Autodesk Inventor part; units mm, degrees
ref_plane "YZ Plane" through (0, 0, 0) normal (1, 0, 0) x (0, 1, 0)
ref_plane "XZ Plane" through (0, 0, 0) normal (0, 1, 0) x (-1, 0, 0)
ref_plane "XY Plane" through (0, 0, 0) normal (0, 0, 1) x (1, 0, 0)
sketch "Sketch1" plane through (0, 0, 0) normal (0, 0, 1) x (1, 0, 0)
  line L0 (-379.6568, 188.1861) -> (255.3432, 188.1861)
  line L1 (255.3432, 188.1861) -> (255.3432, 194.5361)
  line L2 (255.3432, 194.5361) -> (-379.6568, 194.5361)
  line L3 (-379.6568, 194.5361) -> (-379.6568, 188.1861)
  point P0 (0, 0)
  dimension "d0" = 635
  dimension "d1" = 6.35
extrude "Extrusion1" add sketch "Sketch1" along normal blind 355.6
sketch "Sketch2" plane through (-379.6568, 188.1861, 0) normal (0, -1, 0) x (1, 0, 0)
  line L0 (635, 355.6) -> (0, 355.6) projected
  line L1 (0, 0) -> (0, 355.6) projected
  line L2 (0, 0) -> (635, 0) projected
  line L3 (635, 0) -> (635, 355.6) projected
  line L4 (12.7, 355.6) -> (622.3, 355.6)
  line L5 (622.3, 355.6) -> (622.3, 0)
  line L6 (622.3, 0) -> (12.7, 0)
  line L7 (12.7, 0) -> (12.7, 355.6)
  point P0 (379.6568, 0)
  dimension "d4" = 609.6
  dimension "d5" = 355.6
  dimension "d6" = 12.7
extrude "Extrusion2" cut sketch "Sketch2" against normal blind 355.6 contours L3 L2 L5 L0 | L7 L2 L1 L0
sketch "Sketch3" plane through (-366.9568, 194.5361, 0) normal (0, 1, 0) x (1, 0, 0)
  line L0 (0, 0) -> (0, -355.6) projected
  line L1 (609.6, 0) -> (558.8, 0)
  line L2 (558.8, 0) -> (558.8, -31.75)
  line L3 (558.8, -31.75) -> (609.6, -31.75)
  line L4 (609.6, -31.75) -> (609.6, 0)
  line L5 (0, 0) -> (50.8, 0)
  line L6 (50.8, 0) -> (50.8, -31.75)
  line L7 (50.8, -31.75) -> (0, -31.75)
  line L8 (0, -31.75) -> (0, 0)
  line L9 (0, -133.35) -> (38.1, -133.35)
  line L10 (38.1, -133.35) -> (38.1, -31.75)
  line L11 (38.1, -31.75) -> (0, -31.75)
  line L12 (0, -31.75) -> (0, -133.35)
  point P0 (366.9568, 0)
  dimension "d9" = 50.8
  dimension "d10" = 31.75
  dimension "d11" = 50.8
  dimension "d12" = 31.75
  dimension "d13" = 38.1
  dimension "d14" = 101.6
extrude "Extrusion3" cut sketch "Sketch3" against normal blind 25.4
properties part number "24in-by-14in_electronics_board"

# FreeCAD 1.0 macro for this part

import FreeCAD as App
import Part
import Sketcher
from FreeCAD import Vector
Q = App.Units.Quantity


def add_polygon(sketch, points):
    """Adds a closed chain of lines whose ends are joined by coincident constraints."""
    first, n = sketch.GeometryCount, len(points)
    for a, b in zip(points, points[1:] + points[:1]):
        sketch.addGeometry(Part.LineSegment(App.Vector(*a, 0), App.Vector(*b, 0)), False)
    for i in range(n):
        sketch.addConstraint(Sketcher.Constraint("Coincident", first + i, 2, first + (i + 1) % n, 1))

doc = App.newDocument("Part")
body = doc.addObject("PartDesign::Body", "Body")

# Sketch on XY plane
sketch1 = body.newObject("Sketcher::SketchObject", "Sketch")
sketch1.AttachmentSupport = (doc.getObject("XY_Plane"), [""])
sketch1.MapMode = "FlatFace"
add_polygon(sketch1, [(-380, 195), (-380, 188), (255, 188), (255, 195)])  # lines 0-3
sketch1.addConstraint([
    Sketcher.Constraint("Vertical", 0),
    Sketcher.Constraint("Horizontal", 1),
    Sketcher.Constraint("Vertical", 2),
    Sketcher.Constraint("Horizontal", 3),
    Sketcher.Constraint("DistanceX", 1, 1, 1, 2, Q("25 in")),
    Sketcher.Constraint("DistanceY", 0, 2, 0, 1, Q("0.25 in")),
    Sketcher.Constraint("DistanceY", -1, 1, 0, 2, Q("7.4089 in")),
    Sketcher.Constraint("DistanceX", 0, 2, -1, 1, 379.6568),
])
pad1 = body.newObject("PartDesign::Pad", "Pad")
pad1.Profile = sketch1
pad1.Length = Q("14 in")

# Sketch on XZ plane
sketch2 = body.newObject("Sketcher::SketchObject", "Sketch001")
sketch2.AttachmentSupport = (doc.getObject("XZ_Plane"), [""])
sketch2.MapMode = "FlatFace"
sketch2.AttachmentOffset = App.Placement(Vector(0, 0, -7.4089016 * 25.4), App.Rotation())
add_polygon(sketch2, [(255, 0), (255, 356), (243, 356), (243, 0)])  # lines 0-3
add_polygon(sketch2, [(-367, 0), (-367, 356), (-380, 356), (-380, 0)])  # lines 4-7
sketch2.addConstraint([
    Sketcher.Constraint("Vertical", 0),
    Sketcher.Constraint("Horizontal", 1),
    Sketcher.Constraint("Vertical", 2),
    Sketcher.Constraint("Horizontal", 3),
    Sketcher.Constraint("Vertical", 4),
    Sketcher.Constraint("Horizontal", 5),
    Sketcher.Constraint("Vertical", 6),
    Sketcher.Constraint("Horizontal", 7),
    Sketcher.Constraint("PointOnObject", 2, 2, -1),
    Sketcher.Constraint("PointOnObject", 6, 2, -1),
    Sketcher.Constraint("Horizontal", 1, 2, 4, 2),
    Sketcher.Constraint("Equal", 3, 5),
    Sketcher.Constraint("DistanceY", 0, 1, 0, 2, Q("14 in")),
    Sketcher.Constraint("DistanceX", 1, 2, 1, 1, Q("0.5 in")),
    Sketcher.Constraint("DistanceX", 4, 2, 1, 2, Q("24 in")),
    Sketcher.Constraint("DistanceX", -1, 1, 0, 2, 255.3432),
])
pocket1 = body.newObject("PartDesign::Pocket", "Pocket")
pocket1.Profile = sketch2
pocket1.Length = Q("14 in")

# Sketch on XZ plane
sketch3 = body.newObject("Sketcher::SketchObject", "Sketch002")
sketch3.AttachmentSupport = (doc.getObject("XZ_Plane"), [""])
sketch3.MapMode = "FlatFace"
sketch3.AttachmentOffset = App.Placement(Vector(0, 0, -7.6589016 * 25.4), App.Rotation())
add_polygon(sketch3, [(-316, 0), (-367, 0), (-367, 133), (-329, 133), (-329, 32), (-316, 32)])  # lines 0-5
add_polygon(sketch3, [(243, 32), (243, 0), (192, 0), (192, 32)])  # lines 6-9
sketch3.addConstraint([
    Sketcher.Constraint("Horizontal", 0),
    Sketcher.Constraint("Vertical", 1),
    Sketcher.Constraint("Horizontal", 2),
    Sketcher.Constraint("Vertical", 3),
    Sketcher.Constraint("Horizontal", 4),
    Sketcher.Constraint("Vertical", 5),
    Sketcher.Constraint("Vertical", 6),
    Sketcher.Constraint("Horizontal", 7),
    Sketcher.Constraint("Vertical", 8),
    Sketcher.Constraint("Horizontal", 9),
    Sketcher.Constraint("PointOnObject", 0, 2, -1),
    Sketcher.Constraint("PointOnObject", 6, 2, -1),
    Sketcher.Constraint("Horizontal", 4, 2, 8, 2),
    Sketcher.Constraint("Equal", 0, 7),
    Sketcher.Constraint("DistanceX", 0, 2, 0, 1, Q("2 in")),
    Sketcher.Constraint("DistanceY", 3, 2, 3, 1, Q("4 in")),
    Sketcher.Constraint("DistanceX", 2, 1, 2, 2, Q("1.5 in")),
    Sketcher.Constraint("DistanceY", 5, 2, 5, 1, Q("1.25 in")),
    Sketcher.Constraint("DistanceX", 5, 2, 6, 2, Q("22 in")),
    Sketcher.Constraint("DistanceX", 0, 2, -1, 1, 366.9568),
])
pocket2 = body.newObject("PartDesign::Pocket", "Pocket001")
pocket2.Profile = sketch3
pocket2.Length = Q("1 in")
pocket2.Reversed = True

doc.recompute()
